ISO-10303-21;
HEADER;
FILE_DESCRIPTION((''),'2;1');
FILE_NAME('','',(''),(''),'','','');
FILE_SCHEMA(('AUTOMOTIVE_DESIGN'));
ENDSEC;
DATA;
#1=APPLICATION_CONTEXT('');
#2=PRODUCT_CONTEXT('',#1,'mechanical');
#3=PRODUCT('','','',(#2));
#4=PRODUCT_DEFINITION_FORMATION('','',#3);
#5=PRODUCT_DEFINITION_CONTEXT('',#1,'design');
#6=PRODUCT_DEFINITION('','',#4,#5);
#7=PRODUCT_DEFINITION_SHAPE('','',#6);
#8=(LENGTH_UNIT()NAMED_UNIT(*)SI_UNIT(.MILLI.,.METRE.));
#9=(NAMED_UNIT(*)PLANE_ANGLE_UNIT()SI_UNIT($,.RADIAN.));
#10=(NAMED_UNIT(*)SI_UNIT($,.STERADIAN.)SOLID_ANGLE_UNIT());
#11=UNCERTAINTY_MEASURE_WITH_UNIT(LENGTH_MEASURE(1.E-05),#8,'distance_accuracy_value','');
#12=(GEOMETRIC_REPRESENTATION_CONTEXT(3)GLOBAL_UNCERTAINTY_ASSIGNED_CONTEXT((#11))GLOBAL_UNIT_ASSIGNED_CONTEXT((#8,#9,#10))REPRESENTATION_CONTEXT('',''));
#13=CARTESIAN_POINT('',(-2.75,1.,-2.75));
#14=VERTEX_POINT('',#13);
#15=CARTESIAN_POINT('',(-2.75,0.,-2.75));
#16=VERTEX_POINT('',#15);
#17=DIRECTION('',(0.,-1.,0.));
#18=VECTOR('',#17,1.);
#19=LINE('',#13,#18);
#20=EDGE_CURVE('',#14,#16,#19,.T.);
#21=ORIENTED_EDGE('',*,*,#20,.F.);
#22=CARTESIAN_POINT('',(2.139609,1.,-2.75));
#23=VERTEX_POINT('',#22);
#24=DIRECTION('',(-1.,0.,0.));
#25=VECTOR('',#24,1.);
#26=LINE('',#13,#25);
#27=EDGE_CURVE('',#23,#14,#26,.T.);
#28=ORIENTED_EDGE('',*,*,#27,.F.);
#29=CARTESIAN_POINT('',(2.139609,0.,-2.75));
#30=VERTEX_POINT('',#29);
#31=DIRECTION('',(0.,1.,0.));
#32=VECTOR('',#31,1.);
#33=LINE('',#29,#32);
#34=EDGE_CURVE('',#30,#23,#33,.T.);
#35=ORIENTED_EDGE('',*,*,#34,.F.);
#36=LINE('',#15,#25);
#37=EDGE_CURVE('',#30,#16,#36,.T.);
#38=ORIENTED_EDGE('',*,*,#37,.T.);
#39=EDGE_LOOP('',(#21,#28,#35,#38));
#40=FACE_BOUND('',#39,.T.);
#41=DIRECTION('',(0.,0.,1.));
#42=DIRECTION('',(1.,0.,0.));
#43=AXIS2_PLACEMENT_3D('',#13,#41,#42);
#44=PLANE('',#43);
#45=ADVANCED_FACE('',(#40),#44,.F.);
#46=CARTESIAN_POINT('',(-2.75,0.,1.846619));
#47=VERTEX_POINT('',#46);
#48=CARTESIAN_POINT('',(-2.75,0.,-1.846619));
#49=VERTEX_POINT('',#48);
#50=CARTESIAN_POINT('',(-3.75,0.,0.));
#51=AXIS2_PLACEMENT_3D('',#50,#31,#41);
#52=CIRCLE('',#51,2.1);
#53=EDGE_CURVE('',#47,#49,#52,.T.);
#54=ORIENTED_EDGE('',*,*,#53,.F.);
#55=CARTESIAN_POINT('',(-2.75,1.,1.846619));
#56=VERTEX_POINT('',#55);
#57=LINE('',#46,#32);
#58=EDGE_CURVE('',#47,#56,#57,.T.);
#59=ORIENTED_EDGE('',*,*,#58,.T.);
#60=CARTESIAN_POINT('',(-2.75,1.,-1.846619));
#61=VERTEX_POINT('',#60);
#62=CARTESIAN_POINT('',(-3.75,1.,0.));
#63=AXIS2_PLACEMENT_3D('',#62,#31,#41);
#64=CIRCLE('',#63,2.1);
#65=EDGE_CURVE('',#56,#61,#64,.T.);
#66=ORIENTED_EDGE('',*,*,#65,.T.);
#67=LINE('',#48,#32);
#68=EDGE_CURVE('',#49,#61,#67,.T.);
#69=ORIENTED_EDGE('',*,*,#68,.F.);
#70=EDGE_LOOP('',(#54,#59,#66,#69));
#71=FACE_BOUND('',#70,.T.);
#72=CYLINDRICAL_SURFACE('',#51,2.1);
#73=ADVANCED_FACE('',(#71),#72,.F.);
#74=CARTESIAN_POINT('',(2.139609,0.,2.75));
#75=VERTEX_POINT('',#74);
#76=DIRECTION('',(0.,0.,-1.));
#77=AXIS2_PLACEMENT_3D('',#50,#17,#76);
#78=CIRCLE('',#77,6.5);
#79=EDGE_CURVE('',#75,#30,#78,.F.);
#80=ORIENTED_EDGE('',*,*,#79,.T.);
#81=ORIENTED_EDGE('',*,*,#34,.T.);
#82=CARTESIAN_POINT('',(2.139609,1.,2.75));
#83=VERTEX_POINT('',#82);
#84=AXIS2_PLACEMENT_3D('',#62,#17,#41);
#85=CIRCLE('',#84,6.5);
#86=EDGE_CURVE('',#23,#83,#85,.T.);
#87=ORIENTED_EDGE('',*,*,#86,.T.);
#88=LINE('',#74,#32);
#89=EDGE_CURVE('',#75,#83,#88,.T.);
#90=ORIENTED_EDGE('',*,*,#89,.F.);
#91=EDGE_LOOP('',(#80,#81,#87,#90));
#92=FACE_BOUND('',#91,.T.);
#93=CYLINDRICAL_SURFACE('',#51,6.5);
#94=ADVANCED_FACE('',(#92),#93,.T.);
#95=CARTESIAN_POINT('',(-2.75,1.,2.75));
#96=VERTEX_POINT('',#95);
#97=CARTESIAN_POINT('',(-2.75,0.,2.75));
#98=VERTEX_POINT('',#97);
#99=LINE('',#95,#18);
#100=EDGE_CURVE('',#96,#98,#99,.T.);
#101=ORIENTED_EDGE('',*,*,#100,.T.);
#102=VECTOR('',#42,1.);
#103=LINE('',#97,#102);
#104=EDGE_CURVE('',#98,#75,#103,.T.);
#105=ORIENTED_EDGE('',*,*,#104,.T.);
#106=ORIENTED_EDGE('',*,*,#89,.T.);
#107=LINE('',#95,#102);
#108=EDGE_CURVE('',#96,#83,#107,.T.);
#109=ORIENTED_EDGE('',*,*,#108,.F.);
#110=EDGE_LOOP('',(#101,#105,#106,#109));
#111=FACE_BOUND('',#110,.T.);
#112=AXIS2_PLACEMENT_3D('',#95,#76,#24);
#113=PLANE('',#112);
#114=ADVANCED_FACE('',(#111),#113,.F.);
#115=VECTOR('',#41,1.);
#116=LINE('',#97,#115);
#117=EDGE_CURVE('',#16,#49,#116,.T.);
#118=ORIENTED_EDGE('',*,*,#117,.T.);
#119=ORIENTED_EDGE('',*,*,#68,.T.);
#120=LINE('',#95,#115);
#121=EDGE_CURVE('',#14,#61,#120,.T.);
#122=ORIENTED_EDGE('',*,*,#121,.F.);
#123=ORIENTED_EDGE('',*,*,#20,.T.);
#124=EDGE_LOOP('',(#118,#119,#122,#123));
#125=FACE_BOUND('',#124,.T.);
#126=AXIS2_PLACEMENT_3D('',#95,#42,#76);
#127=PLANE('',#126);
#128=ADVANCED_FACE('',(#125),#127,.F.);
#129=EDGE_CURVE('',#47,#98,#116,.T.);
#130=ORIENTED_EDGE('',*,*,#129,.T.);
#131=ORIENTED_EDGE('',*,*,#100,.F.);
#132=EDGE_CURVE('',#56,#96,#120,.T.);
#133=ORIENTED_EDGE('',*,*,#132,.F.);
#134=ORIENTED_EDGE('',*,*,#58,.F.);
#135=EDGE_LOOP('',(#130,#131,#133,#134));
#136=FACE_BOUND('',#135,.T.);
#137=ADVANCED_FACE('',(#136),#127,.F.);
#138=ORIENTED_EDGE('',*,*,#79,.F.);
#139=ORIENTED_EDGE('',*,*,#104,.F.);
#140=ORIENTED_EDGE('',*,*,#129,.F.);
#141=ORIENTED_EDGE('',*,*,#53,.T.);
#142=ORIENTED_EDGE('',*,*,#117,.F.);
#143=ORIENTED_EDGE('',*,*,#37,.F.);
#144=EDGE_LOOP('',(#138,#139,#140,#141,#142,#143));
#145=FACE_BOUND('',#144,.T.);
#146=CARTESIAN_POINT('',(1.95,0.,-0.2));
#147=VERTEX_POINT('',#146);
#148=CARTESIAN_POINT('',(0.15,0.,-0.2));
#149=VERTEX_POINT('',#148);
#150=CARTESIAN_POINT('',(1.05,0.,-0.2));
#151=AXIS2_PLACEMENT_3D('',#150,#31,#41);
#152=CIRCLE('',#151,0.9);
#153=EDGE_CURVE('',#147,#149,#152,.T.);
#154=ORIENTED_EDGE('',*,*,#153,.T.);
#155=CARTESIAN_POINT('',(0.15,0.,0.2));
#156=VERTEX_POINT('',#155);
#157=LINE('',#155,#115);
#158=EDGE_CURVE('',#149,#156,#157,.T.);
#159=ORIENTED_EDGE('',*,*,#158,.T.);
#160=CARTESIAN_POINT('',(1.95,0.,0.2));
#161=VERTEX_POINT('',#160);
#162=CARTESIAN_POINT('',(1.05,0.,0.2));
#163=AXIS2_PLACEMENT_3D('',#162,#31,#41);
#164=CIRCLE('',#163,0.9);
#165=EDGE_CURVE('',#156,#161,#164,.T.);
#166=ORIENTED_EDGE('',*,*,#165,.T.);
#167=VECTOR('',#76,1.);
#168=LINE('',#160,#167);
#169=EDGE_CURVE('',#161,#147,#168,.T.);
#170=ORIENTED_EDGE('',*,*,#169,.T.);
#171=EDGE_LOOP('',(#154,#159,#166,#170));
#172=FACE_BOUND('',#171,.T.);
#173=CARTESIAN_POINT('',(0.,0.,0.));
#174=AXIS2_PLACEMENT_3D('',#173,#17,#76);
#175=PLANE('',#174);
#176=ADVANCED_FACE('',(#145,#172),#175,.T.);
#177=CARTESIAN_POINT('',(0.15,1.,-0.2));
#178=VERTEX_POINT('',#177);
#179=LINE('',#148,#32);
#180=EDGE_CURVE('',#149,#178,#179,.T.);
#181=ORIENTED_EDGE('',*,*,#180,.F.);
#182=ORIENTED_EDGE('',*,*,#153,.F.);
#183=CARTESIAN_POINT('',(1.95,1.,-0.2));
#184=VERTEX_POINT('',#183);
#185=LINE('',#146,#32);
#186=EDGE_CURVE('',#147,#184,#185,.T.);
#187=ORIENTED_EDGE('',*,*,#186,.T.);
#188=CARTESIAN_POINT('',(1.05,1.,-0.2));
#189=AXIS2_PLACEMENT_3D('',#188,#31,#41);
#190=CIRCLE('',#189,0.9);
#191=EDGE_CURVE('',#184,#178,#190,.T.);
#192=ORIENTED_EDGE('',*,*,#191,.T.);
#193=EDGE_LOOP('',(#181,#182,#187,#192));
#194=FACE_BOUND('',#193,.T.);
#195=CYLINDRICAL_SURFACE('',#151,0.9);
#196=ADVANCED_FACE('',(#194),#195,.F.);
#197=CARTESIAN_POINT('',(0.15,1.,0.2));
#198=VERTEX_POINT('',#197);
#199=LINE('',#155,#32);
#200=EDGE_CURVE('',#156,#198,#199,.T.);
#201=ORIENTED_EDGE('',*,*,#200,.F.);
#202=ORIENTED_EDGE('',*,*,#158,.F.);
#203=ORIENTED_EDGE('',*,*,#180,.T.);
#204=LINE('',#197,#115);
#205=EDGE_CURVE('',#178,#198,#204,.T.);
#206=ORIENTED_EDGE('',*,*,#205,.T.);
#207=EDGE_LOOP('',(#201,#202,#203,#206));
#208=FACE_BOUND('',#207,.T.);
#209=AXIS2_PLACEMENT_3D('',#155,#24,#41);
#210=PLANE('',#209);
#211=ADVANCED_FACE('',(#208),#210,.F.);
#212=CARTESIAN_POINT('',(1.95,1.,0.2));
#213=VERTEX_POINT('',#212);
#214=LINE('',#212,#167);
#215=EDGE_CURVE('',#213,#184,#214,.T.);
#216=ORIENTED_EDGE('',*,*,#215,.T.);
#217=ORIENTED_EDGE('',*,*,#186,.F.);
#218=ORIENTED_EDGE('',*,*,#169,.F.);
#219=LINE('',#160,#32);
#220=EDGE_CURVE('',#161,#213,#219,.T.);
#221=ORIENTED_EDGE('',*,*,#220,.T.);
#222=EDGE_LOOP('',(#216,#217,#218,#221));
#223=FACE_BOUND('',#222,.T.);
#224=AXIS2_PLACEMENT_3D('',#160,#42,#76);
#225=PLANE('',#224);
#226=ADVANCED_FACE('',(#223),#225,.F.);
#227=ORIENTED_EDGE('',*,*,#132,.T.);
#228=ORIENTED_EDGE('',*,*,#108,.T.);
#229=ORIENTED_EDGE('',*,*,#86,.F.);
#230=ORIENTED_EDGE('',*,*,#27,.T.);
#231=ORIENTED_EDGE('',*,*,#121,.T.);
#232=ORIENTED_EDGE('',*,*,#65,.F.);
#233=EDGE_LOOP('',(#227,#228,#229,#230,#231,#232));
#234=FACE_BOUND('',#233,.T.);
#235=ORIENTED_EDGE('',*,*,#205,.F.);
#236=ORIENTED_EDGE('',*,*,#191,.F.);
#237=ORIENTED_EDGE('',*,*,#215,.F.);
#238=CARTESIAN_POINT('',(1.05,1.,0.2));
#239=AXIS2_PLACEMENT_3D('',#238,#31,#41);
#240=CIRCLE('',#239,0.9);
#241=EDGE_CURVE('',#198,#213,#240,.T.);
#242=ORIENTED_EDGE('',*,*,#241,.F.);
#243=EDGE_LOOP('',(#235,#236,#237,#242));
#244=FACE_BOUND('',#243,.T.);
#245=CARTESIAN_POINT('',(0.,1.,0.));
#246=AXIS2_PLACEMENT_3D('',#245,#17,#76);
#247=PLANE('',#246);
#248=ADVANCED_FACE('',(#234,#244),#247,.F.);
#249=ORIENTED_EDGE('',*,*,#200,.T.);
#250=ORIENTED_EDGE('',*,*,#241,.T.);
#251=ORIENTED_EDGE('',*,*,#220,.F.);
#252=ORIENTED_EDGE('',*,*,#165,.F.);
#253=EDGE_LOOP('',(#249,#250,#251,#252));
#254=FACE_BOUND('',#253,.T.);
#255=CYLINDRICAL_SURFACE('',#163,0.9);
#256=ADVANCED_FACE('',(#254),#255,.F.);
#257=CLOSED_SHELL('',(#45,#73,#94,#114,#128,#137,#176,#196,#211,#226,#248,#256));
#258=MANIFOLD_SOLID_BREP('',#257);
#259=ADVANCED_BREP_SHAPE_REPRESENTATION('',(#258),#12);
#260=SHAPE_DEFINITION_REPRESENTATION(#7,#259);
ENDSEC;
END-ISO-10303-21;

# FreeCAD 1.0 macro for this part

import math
import FreeCAD as App
import Part
import Sketcher
Q = App.Units.Quantity

doc = App.newDocument("Part")
params = doc.addObject("Spreadsheet::Sheet", "Params")
for row, (alias, value) in enumerate([
    ("sketch1_width", "5.5 mm"),
    ("pad1_length", "1 mm"),
    ("sketch2_radius", "0.9 mm"),
    ("sketch2_height", "0.4 mm"),
    ("sketch3_radius", "2.1 mm"),
    ("sketch4_radius", "6.5 mm"),
    ("sketch4_height", "5.5 mm"),
    ("pocket3_length", "1 mm"),
], start=1):
    params.set(f"A{row}", alias)
    params.set(f"B{row}", "=" + value)
    params.setAlias(f"B{row}", alias)

body = doc.addObject("PartDesign::Body", "Body")

# Sketch on XZ plane
sketch1 = doc.addObject("Sketcher::SketchObject", "Sketch")
body.addObject(sketch1)
sketch1.AttachmentSupport = (doc.XZ_Plane, [""])
sketch1.MapMode = "FlatFace"
sketch1.addGeometry(Part.LineSegment(App.Vector(-3, -3, 0), App.Vector(-3, 3, 0)), False)
sketch1.addGeometry(Part.LineSegment(App.Vector(-3, 3, 0), App.Vector(3, 3, 0)), False)
sketch1.addGeometry(Part.LineSegment(App.Vector(3, 3, 0), App.Vector(3, -3, 0)), False)
sketch1.addGeometry(Part.LineSegment(App.Vector(3, -3, 0), App.Vector(-3, -3, 0)), False)
sketch1.addConstraint(Sketcher.Constraint("Coincident", 0, 2, 1, 1))
sketch1.addConstraint(Sketcher.Constraint("Coincident", 1, 2, 2, 1))
sketch1.addConstraint(Sketcher.Constraint("Coincident", 2, 2, 3, 1))
sketch1.addConstraint(Sketcher.Constraint("Coincident", 3, 2, 0, 1))
sketch1.addConstraint(Sketcher.Constraint("Vertical", 0))
sketch1.addConstraint(Sketcher.Constraint("Horizontal", 1))
sketch1.addConstraint(Sketcher.Constraint("Vertical", 2))
sketch1.addConstraint(Sketcher.Constraint("Horizontal", 3))
sketch1.addConstraint(Sketcher.Constraint("Symmetric", 0, 2, 2, 2, -1, 1))
sketch1.addConstraint(Sketcher.Constraint("Equal", 3, 0))
sketch1.addConstraint(Sketcher.Constraint("DistanceX", 1, 1, 1, 2, Q("5.5 mm")))
sketch1.setExpression("Constraints[10]", "Params.sketch1_width")
pad1 = doc.addObject("PartDesign::Pad", "Pad")
body.addObject(pad1)
pad1.Profile = sketch1
pad1.setExpression("Length", "Params.pad1_length")
pad1.Reversed = True

# Sketch on XZ plane
sketch2 = doc.addObject("Sketcher::SketchObject", "Sketch001")
body.addObject(sketch2)
sketch2.AttachmentSupport = (doc.XZ_Plane, [""])
sketch2.MapMode = "FlatFace"
sketch2.AttachmentOffset = App.Placement(App.Vector(0, 0, -1), App.Rotation())
sketch2.addGeometry(Part.LineSegment(App.Vector(0.15, -0.2, 0), App.Vector(0.15, 0.2, 0)), False)
sketch2.addGeometry(Part.ArcOfCircle(Part.Circle(App.Vector(1.05, 0.2, 0), App.Vector(0, 0, 1), 0.9), math.radians(0), math.radians(180)), False)
sketch2.addGeometry(Part.LineSegment(App.Vector(1.95, 0.2, 0), App.Vector(1.95, -0.2, 0)), False)
sketch2.addGeometry(Part.ArcOfCircle(Part.Circle(App.Vector(1.05, -0.2, 0), App.Vector(0, 0, 1), 0.9), math.radians(180), math.radians(360)), False)
sketch2.addConstraint(Sketcher.Constraint("Tangent", 0, 2, 1, 2))
sketch2.addConstraint(Sketcher.Constraint("Tangent", 1, 1, 2, 1))
sketch2.addConstraint(Sketcher.Constraint("Tangent", 2, 2, 3, 2))
sketch2.addConstraint(Sketcher.Constraint("Tangent", 3, 1, 0, 1))
sketch2.addConstraint(Sketcher.Constraint("Vertical", 0))
sketch2.addConstraint(Sketcher.Constraint("Vertical", 2))
sketch2.addConstraint(Sketcher.Constraint("Radius", 1, Q("0.9 mm")))
sketch2.addConstraint(Sketcher.Constraint("DistanceY", 0, 1, 0, 2, Q("0.4 mm")))
sketch2.addConstraint(Sketcher.Constraint("DistanceY", -1, 1, 1, 3, Q("0.2 mm")))
sketch2.addConstraint(Sketcher.Constraint("DistanceX", -1, 1, 1, 3, Q("1.05 mm")))
sketch2.setExpression("Constraints[6]", "Params.sketch2_radius")
sketch2.setExpression("Constraints[7]", "Params.sketch2_height")
pocket1 = doc.addObject("PartDesign::Pocket", "Pocket")
body.addObject(pocket1)
pocket1.Profile = sketch2
pocket1.Type = "ThroughAll"
pocket1.Reversed = True

# Sketch on XZ plane
sketch3 = doc.addObject("Sketcher::SketchObject", "Sketch002")
body.addObject(sketch3)
sketch3.AttachmentSupport = (doc.XZ_Plane, [""])
sketch3.MapMode = "FlatFace"
sketch3.AttachmentOffset = App.Placement(App.Vector(0, 0, -1), App.Rotation())
sketch3.addGeometry(Part.LineSegment(App.Vector(-2.8, -1.8, 0), App.Vector(-2.8, 1.8, 0)), False)
sketch3.addGeometry(Part.ArcOfCircle(Part.Circle(App.Vector(-3.8, 0, 0), App.Vector(0, 0, 1), 2.1), math.radians(-62), math.radians(62)), False)
sketch3.addConstraint(Sketcher.Constraint("Coincident", 0, 1, 1, 1))
sketch3.addConstraint(Sketcher.Constraint("Coincident", 1, 2, 0, 2))
sketch3.addConstraint(Sketcher.Constraint("Vertical", 0))
sketch3.addConstraint(Sketcher.Constraint("PointOnObject", 1, 3, -1))
sketch3.addConstraint(Sketcher.Constraint("Radius", 1, Q("2.1 mm")))
sketch3.addConstraint(Sketcher.Constraint("DistanceX", 1, 3, 0, 1, Q("1 mm")))
sketch3.addConstraint(Sketcher.Constraint("DistanceX", 1, 3, -1, 1, Q("3.75 mm")))
sketch3.setExpression("Constraints[4]", "Params.sketch3_radius")
pocket2 = doc.addObject("PartDesign::Pocket", "Pocket001")
body.addObject(pocket2)
pocket2.Profile = sketch3
pocket2.Type = "ThroughAll"
pocket2.Reversed = True

# Sketch on XZ plane
sketch4 = doc.addObject("Sketcher::SketchObject", "Sketch003")
body.addObject(sketch4)
sketch4.AttachmentSupport = (doc.XZ_Plane, [""])
sketch4.MapMode = "FlatFace"
sketch4.AttachmentOffset = App.Placement(App.Vector(0, 0, -1), App.Rotation())
sketch4.addGeometry(Part.LineSegment(App.Vector(3.9, 2.8, 0), App.Vector(3.9, -2.8, 0)), False)
sketch4.addGeometry(Part.LineSegment(App.Vector(3.9, -2.8, 0), App.Vector(2.1, -2.8, 0)), False)
sketch4.addGeometry(Part.ArcOfCircle(Part.Circle(App.Vector(-3.8, 0, 0), App.Vector(0, 0, 1), 6.5), math.radians(-25), math.radians(25)), False)
sketch4.addGeometry(Part.LineSegment(App.Vector(2.1, 2.8, 0), App.Vector(3.9, 2.8, 0)), False)
sketch4.addConstraint(Sketcher.Constraint("Coincident", 0, 2, 1, 1))
sketch4.addConstraint(Sketcher.Constraint("Coincident", 1, 2, 2, 1))
sketch4.addConstraint(Sketcher.Constraint("Coincident", 2, 2, 3, 1))
sketch4.addConstraint(Sketcher.Constraint("Coincident", 3, 2, 0, 1))
sketch4.addConstraint(Sketcher.Constraint("Vertical", 0))
sketch4.addConstraint(Sketcher.Constraint("Horizontal", 1))
sketch4.addConstraint(Sketcher.Constraint("Horizontal", 3))
sketch4.addConstraint(Sketcher.Constraint("Symmetric", 1, 2, 2, 2, -1))
sketch4.addConstraint(Sketcher.Constraint("Radius", 2, Q("6.5 mm")))
sketch4.addConstraint(Sketcher.Constraint("DistanceY", 0, 2, 0, 1, Q("5.5 mm")))
sketch4.addConstraint(Sketcher.Constraint("DistanceX", 2, 3, 0, 2, Q("7.6 mm")))
sketch4.addConstraint(Sketcher.Constraint("DistanceX", 2, 3, -1, 1, Q("3.75 mm")))
sketch4.setExpression("Constraints[8]", "Params.sketch4_radius")
sketch4.setExpression("Constraints[9]", "Params.sketch4_height")
pocket3 = doc.addObject("PartDesign::Pocket", "Pocket002")
body.addObject(pocket3)
pocket3.Profile = sketch4
pocket3.setExpression("Length", "Params.pocket3_length")
pocket3.Reversed = True

doc.recompute()
